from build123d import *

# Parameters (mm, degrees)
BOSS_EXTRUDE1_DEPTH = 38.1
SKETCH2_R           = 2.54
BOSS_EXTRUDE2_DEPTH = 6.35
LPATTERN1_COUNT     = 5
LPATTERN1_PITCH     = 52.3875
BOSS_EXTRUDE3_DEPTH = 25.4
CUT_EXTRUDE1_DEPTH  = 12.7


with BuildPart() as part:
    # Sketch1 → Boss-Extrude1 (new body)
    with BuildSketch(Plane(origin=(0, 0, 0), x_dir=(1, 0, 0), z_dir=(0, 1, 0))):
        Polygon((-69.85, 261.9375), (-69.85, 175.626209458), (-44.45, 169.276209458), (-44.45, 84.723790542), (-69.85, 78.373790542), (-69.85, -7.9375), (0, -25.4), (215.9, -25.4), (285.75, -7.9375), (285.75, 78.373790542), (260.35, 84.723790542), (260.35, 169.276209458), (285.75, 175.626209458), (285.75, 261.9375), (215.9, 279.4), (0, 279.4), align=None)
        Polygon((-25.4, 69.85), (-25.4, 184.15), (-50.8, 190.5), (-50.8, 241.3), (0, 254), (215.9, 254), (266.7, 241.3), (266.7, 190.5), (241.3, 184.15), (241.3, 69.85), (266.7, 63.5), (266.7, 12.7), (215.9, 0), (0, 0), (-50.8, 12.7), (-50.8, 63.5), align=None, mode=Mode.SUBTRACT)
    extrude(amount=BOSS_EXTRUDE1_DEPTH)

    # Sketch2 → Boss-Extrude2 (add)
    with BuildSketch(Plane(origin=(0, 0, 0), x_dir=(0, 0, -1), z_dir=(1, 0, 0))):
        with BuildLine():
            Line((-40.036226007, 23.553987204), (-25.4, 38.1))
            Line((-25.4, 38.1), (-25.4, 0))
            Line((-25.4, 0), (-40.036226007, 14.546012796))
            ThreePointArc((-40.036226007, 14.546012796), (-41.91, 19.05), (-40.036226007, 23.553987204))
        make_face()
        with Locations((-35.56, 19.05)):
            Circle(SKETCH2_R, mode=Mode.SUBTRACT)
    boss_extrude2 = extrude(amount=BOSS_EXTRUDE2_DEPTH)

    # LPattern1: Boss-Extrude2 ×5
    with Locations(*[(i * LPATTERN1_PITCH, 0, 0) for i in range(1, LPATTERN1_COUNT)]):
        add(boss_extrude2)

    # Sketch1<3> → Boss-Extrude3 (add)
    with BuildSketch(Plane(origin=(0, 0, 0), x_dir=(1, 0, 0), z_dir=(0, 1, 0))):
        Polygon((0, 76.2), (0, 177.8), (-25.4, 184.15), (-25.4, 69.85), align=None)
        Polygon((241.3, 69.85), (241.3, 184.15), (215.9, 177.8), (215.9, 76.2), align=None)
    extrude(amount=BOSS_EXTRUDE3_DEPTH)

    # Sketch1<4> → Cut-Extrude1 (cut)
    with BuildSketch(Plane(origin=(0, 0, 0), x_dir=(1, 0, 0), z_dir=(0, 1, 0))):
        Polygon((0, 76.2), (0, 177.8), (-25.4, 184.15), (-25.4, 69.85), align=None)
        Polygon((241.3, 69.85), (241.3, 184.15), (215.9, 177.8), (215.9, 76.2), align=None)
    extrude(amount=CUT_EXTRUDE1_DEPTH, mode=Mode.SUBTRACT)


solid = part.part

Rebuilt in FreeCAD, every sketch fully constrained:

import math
import FreeCAD as App
import Part
import Sketcher

V = App.Vector
Q = App.Units.Quantity


def add_polygon(sketch, points):
    """Adds a closed chain of lines whose ends are joined by coincident constraints."""
    first, n = sketch.GeometryCount, len(points)
    for a, b in zip(points, points[1:] + points[:1]):
        sketch.addGeometry(Part.LineSegment(App.Vector(*a, 0), App.Vector(*b, 0)), False)
    for i in range(n):
        sketch.addConstraint(Sketcher.Constraint("Coincident", first + i, 2, first + (i + 1) % n, 1))

doc = App.newDocument("Part")
body = doc.addObject("PartDesign::Body", "Body")

# Sketch on XZ plane
sketch1 = doc.addObject("Sketcher::SketchObject", "Sketch")
body.addObject(sketch1)
sketch1.AttachmentSupport = (doc.XZ_Plane, [""])
sketch1.MapMode = "FlatFace"
add_polygon(sketch1, [(-70, -262), (-70, -176), (-44, -169), (-44, -85), (-70, -78), (-70, 8), (0, 25), (216, 25), (286, 8), (286, -78), (260, -85), (260, -169), (286, -176), (286, -262), (216, -279), (0, -279)])  # lines 0-15
add_polygon(sketch1, [(-51, -64), (-25, -70), (-25, -184), (-51, -190), (-51, -241), (0, -254), (216, -254), (267, -241), (267, -190), (241, -184), (241, -70), (267, -64), (267, -13), (216, 0), (0, 0), (-51, -13)])  # lines 16-31
sketch1.addConstraint([
    Sketcher.Constraint("Vertical", 0),
    Sketcher.Constraint("Vertical", 2),
    Sketcher.Constraint("Vertical", 4),
    Sketcher.Constraint("Horizontal", 6),
    Sketcher.Constraint("Vertical", 8),
    Sketcher.Constraint("Vertical", 10),
    Sketcher.Constraint("Vertical", 12),
    Sketcher.Constraint("Horizontal", 14),
    Sketcher.Constraint("Vertical", 17),
    Sketcher.Constraint("Vertical", 19),
    Sketcher.Constraint("Horizontal", 21),
    Sketcher.Constraint("Vertical", 23),
    Sketcher.Constraint("Vertical", 25),
    Sketcher.Constraint("Vertical", 27),
    Sketcher.Constraint("Horizontal", 29),
    Sketcher.Constraint("Vertical", 31),
    Sketcher.Constraint("Coincident", 29, 2, -1, 1),
    Sketcher.Constraint("PointOnObject", 5, 2, -2),
    Sketcher.Constraint("PointOnObject", 14, 2, -2),
    Sketcher.Constraint("PointOnObject", 20, 2, -2),
    Sketcher.Constraint("Parallel", 1, 5),
    Sketcher.Constraint("Parallel", 3, 7),
    Sketcher.Constraint("Parallel", 5, 9),
    Sketcher.Constraint("Parallel", 7, 11),
    Sketcher.Constraint("Parallel", 9, 13),
    Sketcher.Constraint("Parallel", 11, 15),
    Sketcher.Constraint("Parallel", 15, 16),
    Sketcher.Constraint("Parallel", 13, 18),
    Sketcher.Constraint("Parallel", 16, 20),
    Sketcher.Constraint("Parallel", 18, 22),
    Sketcher.Constraint("Parallel", 20, 24),
    Sketcher.Constraint("Parallel", 22, 26),
    Sketcher.Constraint("Parallel", 24, 28),
    Sketcher.Constraint("Parallel", 26, 30),
    Sketcher.Constraint("Horizontal", 4, 2, 7, 2),
    Sketcher.Constraint("Horizontal", 3, 2, 8, 2),
    Sketcher.Constraint("Horizontal", 2, 2, 9, 2),
    Sketcher.Constraint("Horizontal", 1, 2, 10, 2),
    Sketcher.Constraint("Horizontal", 0, 2, 11, 2),
    Sketcher.Constraint("Horizontal", 12, 2, 15, 2),
    Sketcher.Constraint("Horizontal", 19, 2, 22, 2),
    Sketcher.Constraint("Horizontal", 18, 2, 23, 2),
    Sketcher.Constraint("Horizontal", 17, 2, 24, 2),
    Sketcher.Constraint("Horizontal", 16, 2, 25, 2),
    Sketcher.Constraint("Horizontal", 27, 2, 30, 2),
    Sketcher.Constraint("Horizontal", 26, 2, 31, 2),
    Sketcher.Constraint("Vertical", 0, 2, 3, 2),
    Sketcher.Constraint("Vertical", 8, 2, 11, 2),
    Sketcher.Constraint("Vertical", 13, 2, 21, 2),
    Sketcher.Constraint("Vertical", 23, 2, 26, 2),
    Sketcher.Constraint("Equal", 0, 4),
    Sketcher.Constraint("Equal", 23, 27),
    Sketcher.Constraint("Equal", 11, 16),
    Sketcher.Constraint("DistanceY", 19, 2, 19, 1, Q("2 in")),
    Sketcher.Constraint("DistanceX", 6, 1, 6, 2, Q("8.5 in")),
    Sketcher.Constraint("DistanceY", 17, 2, 17, 1, Q("4.5 in")),
    Sketcher.Constraint("DistanceY", -1, 1, 5, 2, Q("1 in")),
    Sketcher.Constraint("DistanceY", 13, 2, -1, 1, Q("11 in")),
    Sketcher.Constraint("DistanceX", 16, 2, -1, 1, Q("1 in")),
    Sketcher.Constraint("DistanceX", 18, 2, -1, 1, Q("2 in")),
    Sketcher.Constraint("DistanceY", 20, 2, -1, 1, Q("10 in")),
    Sketcher.Constraint("DistanceX", 2, 2, 7, 2, Q("13 in")),
    Sketcher.Constraint("DistanceY", 0, 1, 0, 2, 86.311291),
])
pad1 = doc.addObject("PartDesign::Pad", "Pad")
body.addObject(pad1)
pad1.Profile = sketch1
pad1.Length = Q("1.5 in")
pad1.Reversed = True

# Sketch on YZ plane
sketch2 = doc.addObject("Sketcher::SketchObject", "Sketch001")
body.addObject(sketch2)
sketch2.AttachmentSupport = (doc.YZ_Plane, [""])
sketch2.MapMode = "FlatFace"
sketch2.addGeometry([
    Part.LineSegment(V(38.1, 25.4, 0), V(23.6, 40, 0)),  # 0
    Part.ArcOfCircle(Part.Circle(V(19.1, 35.6, 0), V(0, 0, 1), 6.3), math.radians(45), math.radians(135)),  # 1
    Part.LineSegment(V(14.5, 40, 0), V(0, 25.4, 0)),  # 2
    Part.LineSegment(V(0, 25.4, 0), V(38.1, 25.4, 0)),  # 3
    Part.Circle(V(19.1, 35.6, 0), V(0, 0, 1), 2.5),  # 4
], False)
sketch2.addConstraint([
    Sketcher.Constraint("Tangent", 0, 2, 1, 1),
    Sketcher.Constraint("Tangent", 1, 2, 2, 1),
    Sketcher.Constraint("Coincident", 2, 2, 3, 1),
    Sketcher.Constraint("Coincident", 3, 2, 0, 1),
    Sketcher.Constraint("Horizontal", 3),
    Sketcher.Constraint("Coincident", 4, 3, 1, 3),
    Sketcher.Constraint("PointOnObject", 2, 2, -2),
    Sketcher.Constraint("Horizontal", 0, 2, 1, 2),
    Sketcher.Constraint("Diameter", 4, Q("0.2 in")),
    Sketcher.Constraint("Radius", 1, Q("0.25 in")),
    Sketcher.Constraint("DistanceX", 3, 1, 3, 2, Q("1.5 in")),
    Sketcher.Constraint("DistanceY", -1, 1, 2, 2, Q("1 in")),
    Sketcher.Constraint("DistanceY", -1, 1, 1, 3, Q("1.4 in")),
])
pad2 = doc.addObject("PartDesign::Pad", "Pad001")
body.addObject(pad2)
pad2.Profile = sketch2
pad2.Length = Q("0.25 in")
doc.recompute()

linearpattern = doc.addObject("PartDesign::LinearPattern", "LinearPattern")
body.addObject(linearpattern)
linearpattern.Originals = [pad2]
linearpattern.Direction = (doc.X_Axis, [""])
linearpattern.Mode = "offset"
linearpattern.Offset = Q("2.0625 in")
linearpattern.Occurrences = 5
body.Tip = linearpattern

# Sketch on XZ plane
sketch3 = doc.addObject("Sketcher::SketchObject", "Sketch002")
body.addObject(sketch3)
sketch3.AttachmentSupport = (doc.XZ_Plane, [""])
sketch3.MapMode = "FlatFace"
add_polygon(sketch3, [(0, -76), (0, -178), (-25, -184), (-25, -70)])  # lines 0-3
add_polygon(sketch3, [(241, -70), (241, -184), (216, -178), (216, -76)])  # lines 4-7
sketch3.addConstraint([
    Sketcher.Constraint("Vertical", 0),
    Sketcher.Constraint("Vertical", 2),
    Sketcher.Constraint("Vertical", 4),
    Sketcher.Constraint("Vertical", 6),
    Sketcher.Constraint("PointOnObject", 0, 2, -2),
    Sketcher.Constraint("Parallel", 3, 5),
    Sketcher.Constraint("Parallel", 1, 7),
    Sketcher.Constraint("Horizontal", 1, 2, 4, 2),
    Sketcher.Constraint("Horizontal", 0, 2, 5, 2),
    Sketcher.Constraint("Horizontal", 3, 2, 6, 2),
    Sketcher.Constraint("Horizontal", 2, 2, 7, 2),
    Sketcher.Constraint("DistanceY", 0, 2, 0, 1, Q("4 in")),
    Sketcher.Constraint("DistanceY", 2, 1, 2, 2, Q("4.5 in")),
    Sketcher.Constraint("DistanceY", 0, 2, -1, 1, Q("7 in")),
    Sketcher.Constraint("DistanceX", 1, 2, -1, 1, Q("1 in")),
    Sketcher.Constraint("DistanceX", -1, 1, 4, 2, Q("9.5 in")),
])
pad3 = doc.addObject("PartDesign::Pad", "Pad002")
body.addObject(pad3)
pad3.Profile = sketch3
pad3.Length = Q("1 in")
pad3.Reversed = True

# Sketch on XZ plane
sketch4 = doc.addObject("Sketcher::SketchObject", "Sketch003")
body.addObject(sketch4)
sketch4.AttachmentSupport = (doc.XZ_Plane, [""])
sketch4.MapMode = "FlatFace"
add_polygon(sketch4, [(0, -76), (0, -178), (-25, -184), (-25, -70)])  # lines 0-3
add_polygon(sketch4, [(241, -70), (241, -184), (216, -178), (216, -76)])  # lines 4-7
sketch4.addConstraint([
    Sketcher.Constraint("Vertical", 0),
    Sketcher.Constraint("Vertical", 2),
    Sketcher.Constraint("Vertical", 4),
    Sketcher.Constraint("Vertical", 6),
    Sketcher.Constraint("PointOnObject", 0, 2, -2),
    Sketcher.Constraint("Parallel", 3, 5),
    Sketcher.Constraint("Parallel", 1, 7),
    Sketcher.Constraint("Horizontal", 1, 2, 4, 2),
    Sketcher.Constraint("Horizontal", 0, 2, 5, 2),
    Sketcher.Constraint("Horizontal", 3, 2, 6, 2),
    Sketcher.Constraint("Horizontal", 2, 2, 7, 2),
    Sketcher.Constraint("DistanceY", 0, 2, 0, 1, Q("4 in")),
    Sketcher.Constraint("DistanceY", 2, 1, 2, 2, Q("4.5 in")),
    Sketcher.Constraint("DistanceY", 0, 2, -1, 1, Q("7 in")),
    Sketcher.Constraint("DistanceX", 1, 2, -1, 1, Q("1 in")),
    Sketcher.Constraint("DistanceX", -1, 1, 4, 2, Q("9.5 in")),
])
pocket1 = doc.addObject("PartDesign::Pocket", "Pocket")
body.addObject(pocket1)
pocket1.Profile = sketch4
pocket1.Length = Q("0.5 in")

doc.recompute()
